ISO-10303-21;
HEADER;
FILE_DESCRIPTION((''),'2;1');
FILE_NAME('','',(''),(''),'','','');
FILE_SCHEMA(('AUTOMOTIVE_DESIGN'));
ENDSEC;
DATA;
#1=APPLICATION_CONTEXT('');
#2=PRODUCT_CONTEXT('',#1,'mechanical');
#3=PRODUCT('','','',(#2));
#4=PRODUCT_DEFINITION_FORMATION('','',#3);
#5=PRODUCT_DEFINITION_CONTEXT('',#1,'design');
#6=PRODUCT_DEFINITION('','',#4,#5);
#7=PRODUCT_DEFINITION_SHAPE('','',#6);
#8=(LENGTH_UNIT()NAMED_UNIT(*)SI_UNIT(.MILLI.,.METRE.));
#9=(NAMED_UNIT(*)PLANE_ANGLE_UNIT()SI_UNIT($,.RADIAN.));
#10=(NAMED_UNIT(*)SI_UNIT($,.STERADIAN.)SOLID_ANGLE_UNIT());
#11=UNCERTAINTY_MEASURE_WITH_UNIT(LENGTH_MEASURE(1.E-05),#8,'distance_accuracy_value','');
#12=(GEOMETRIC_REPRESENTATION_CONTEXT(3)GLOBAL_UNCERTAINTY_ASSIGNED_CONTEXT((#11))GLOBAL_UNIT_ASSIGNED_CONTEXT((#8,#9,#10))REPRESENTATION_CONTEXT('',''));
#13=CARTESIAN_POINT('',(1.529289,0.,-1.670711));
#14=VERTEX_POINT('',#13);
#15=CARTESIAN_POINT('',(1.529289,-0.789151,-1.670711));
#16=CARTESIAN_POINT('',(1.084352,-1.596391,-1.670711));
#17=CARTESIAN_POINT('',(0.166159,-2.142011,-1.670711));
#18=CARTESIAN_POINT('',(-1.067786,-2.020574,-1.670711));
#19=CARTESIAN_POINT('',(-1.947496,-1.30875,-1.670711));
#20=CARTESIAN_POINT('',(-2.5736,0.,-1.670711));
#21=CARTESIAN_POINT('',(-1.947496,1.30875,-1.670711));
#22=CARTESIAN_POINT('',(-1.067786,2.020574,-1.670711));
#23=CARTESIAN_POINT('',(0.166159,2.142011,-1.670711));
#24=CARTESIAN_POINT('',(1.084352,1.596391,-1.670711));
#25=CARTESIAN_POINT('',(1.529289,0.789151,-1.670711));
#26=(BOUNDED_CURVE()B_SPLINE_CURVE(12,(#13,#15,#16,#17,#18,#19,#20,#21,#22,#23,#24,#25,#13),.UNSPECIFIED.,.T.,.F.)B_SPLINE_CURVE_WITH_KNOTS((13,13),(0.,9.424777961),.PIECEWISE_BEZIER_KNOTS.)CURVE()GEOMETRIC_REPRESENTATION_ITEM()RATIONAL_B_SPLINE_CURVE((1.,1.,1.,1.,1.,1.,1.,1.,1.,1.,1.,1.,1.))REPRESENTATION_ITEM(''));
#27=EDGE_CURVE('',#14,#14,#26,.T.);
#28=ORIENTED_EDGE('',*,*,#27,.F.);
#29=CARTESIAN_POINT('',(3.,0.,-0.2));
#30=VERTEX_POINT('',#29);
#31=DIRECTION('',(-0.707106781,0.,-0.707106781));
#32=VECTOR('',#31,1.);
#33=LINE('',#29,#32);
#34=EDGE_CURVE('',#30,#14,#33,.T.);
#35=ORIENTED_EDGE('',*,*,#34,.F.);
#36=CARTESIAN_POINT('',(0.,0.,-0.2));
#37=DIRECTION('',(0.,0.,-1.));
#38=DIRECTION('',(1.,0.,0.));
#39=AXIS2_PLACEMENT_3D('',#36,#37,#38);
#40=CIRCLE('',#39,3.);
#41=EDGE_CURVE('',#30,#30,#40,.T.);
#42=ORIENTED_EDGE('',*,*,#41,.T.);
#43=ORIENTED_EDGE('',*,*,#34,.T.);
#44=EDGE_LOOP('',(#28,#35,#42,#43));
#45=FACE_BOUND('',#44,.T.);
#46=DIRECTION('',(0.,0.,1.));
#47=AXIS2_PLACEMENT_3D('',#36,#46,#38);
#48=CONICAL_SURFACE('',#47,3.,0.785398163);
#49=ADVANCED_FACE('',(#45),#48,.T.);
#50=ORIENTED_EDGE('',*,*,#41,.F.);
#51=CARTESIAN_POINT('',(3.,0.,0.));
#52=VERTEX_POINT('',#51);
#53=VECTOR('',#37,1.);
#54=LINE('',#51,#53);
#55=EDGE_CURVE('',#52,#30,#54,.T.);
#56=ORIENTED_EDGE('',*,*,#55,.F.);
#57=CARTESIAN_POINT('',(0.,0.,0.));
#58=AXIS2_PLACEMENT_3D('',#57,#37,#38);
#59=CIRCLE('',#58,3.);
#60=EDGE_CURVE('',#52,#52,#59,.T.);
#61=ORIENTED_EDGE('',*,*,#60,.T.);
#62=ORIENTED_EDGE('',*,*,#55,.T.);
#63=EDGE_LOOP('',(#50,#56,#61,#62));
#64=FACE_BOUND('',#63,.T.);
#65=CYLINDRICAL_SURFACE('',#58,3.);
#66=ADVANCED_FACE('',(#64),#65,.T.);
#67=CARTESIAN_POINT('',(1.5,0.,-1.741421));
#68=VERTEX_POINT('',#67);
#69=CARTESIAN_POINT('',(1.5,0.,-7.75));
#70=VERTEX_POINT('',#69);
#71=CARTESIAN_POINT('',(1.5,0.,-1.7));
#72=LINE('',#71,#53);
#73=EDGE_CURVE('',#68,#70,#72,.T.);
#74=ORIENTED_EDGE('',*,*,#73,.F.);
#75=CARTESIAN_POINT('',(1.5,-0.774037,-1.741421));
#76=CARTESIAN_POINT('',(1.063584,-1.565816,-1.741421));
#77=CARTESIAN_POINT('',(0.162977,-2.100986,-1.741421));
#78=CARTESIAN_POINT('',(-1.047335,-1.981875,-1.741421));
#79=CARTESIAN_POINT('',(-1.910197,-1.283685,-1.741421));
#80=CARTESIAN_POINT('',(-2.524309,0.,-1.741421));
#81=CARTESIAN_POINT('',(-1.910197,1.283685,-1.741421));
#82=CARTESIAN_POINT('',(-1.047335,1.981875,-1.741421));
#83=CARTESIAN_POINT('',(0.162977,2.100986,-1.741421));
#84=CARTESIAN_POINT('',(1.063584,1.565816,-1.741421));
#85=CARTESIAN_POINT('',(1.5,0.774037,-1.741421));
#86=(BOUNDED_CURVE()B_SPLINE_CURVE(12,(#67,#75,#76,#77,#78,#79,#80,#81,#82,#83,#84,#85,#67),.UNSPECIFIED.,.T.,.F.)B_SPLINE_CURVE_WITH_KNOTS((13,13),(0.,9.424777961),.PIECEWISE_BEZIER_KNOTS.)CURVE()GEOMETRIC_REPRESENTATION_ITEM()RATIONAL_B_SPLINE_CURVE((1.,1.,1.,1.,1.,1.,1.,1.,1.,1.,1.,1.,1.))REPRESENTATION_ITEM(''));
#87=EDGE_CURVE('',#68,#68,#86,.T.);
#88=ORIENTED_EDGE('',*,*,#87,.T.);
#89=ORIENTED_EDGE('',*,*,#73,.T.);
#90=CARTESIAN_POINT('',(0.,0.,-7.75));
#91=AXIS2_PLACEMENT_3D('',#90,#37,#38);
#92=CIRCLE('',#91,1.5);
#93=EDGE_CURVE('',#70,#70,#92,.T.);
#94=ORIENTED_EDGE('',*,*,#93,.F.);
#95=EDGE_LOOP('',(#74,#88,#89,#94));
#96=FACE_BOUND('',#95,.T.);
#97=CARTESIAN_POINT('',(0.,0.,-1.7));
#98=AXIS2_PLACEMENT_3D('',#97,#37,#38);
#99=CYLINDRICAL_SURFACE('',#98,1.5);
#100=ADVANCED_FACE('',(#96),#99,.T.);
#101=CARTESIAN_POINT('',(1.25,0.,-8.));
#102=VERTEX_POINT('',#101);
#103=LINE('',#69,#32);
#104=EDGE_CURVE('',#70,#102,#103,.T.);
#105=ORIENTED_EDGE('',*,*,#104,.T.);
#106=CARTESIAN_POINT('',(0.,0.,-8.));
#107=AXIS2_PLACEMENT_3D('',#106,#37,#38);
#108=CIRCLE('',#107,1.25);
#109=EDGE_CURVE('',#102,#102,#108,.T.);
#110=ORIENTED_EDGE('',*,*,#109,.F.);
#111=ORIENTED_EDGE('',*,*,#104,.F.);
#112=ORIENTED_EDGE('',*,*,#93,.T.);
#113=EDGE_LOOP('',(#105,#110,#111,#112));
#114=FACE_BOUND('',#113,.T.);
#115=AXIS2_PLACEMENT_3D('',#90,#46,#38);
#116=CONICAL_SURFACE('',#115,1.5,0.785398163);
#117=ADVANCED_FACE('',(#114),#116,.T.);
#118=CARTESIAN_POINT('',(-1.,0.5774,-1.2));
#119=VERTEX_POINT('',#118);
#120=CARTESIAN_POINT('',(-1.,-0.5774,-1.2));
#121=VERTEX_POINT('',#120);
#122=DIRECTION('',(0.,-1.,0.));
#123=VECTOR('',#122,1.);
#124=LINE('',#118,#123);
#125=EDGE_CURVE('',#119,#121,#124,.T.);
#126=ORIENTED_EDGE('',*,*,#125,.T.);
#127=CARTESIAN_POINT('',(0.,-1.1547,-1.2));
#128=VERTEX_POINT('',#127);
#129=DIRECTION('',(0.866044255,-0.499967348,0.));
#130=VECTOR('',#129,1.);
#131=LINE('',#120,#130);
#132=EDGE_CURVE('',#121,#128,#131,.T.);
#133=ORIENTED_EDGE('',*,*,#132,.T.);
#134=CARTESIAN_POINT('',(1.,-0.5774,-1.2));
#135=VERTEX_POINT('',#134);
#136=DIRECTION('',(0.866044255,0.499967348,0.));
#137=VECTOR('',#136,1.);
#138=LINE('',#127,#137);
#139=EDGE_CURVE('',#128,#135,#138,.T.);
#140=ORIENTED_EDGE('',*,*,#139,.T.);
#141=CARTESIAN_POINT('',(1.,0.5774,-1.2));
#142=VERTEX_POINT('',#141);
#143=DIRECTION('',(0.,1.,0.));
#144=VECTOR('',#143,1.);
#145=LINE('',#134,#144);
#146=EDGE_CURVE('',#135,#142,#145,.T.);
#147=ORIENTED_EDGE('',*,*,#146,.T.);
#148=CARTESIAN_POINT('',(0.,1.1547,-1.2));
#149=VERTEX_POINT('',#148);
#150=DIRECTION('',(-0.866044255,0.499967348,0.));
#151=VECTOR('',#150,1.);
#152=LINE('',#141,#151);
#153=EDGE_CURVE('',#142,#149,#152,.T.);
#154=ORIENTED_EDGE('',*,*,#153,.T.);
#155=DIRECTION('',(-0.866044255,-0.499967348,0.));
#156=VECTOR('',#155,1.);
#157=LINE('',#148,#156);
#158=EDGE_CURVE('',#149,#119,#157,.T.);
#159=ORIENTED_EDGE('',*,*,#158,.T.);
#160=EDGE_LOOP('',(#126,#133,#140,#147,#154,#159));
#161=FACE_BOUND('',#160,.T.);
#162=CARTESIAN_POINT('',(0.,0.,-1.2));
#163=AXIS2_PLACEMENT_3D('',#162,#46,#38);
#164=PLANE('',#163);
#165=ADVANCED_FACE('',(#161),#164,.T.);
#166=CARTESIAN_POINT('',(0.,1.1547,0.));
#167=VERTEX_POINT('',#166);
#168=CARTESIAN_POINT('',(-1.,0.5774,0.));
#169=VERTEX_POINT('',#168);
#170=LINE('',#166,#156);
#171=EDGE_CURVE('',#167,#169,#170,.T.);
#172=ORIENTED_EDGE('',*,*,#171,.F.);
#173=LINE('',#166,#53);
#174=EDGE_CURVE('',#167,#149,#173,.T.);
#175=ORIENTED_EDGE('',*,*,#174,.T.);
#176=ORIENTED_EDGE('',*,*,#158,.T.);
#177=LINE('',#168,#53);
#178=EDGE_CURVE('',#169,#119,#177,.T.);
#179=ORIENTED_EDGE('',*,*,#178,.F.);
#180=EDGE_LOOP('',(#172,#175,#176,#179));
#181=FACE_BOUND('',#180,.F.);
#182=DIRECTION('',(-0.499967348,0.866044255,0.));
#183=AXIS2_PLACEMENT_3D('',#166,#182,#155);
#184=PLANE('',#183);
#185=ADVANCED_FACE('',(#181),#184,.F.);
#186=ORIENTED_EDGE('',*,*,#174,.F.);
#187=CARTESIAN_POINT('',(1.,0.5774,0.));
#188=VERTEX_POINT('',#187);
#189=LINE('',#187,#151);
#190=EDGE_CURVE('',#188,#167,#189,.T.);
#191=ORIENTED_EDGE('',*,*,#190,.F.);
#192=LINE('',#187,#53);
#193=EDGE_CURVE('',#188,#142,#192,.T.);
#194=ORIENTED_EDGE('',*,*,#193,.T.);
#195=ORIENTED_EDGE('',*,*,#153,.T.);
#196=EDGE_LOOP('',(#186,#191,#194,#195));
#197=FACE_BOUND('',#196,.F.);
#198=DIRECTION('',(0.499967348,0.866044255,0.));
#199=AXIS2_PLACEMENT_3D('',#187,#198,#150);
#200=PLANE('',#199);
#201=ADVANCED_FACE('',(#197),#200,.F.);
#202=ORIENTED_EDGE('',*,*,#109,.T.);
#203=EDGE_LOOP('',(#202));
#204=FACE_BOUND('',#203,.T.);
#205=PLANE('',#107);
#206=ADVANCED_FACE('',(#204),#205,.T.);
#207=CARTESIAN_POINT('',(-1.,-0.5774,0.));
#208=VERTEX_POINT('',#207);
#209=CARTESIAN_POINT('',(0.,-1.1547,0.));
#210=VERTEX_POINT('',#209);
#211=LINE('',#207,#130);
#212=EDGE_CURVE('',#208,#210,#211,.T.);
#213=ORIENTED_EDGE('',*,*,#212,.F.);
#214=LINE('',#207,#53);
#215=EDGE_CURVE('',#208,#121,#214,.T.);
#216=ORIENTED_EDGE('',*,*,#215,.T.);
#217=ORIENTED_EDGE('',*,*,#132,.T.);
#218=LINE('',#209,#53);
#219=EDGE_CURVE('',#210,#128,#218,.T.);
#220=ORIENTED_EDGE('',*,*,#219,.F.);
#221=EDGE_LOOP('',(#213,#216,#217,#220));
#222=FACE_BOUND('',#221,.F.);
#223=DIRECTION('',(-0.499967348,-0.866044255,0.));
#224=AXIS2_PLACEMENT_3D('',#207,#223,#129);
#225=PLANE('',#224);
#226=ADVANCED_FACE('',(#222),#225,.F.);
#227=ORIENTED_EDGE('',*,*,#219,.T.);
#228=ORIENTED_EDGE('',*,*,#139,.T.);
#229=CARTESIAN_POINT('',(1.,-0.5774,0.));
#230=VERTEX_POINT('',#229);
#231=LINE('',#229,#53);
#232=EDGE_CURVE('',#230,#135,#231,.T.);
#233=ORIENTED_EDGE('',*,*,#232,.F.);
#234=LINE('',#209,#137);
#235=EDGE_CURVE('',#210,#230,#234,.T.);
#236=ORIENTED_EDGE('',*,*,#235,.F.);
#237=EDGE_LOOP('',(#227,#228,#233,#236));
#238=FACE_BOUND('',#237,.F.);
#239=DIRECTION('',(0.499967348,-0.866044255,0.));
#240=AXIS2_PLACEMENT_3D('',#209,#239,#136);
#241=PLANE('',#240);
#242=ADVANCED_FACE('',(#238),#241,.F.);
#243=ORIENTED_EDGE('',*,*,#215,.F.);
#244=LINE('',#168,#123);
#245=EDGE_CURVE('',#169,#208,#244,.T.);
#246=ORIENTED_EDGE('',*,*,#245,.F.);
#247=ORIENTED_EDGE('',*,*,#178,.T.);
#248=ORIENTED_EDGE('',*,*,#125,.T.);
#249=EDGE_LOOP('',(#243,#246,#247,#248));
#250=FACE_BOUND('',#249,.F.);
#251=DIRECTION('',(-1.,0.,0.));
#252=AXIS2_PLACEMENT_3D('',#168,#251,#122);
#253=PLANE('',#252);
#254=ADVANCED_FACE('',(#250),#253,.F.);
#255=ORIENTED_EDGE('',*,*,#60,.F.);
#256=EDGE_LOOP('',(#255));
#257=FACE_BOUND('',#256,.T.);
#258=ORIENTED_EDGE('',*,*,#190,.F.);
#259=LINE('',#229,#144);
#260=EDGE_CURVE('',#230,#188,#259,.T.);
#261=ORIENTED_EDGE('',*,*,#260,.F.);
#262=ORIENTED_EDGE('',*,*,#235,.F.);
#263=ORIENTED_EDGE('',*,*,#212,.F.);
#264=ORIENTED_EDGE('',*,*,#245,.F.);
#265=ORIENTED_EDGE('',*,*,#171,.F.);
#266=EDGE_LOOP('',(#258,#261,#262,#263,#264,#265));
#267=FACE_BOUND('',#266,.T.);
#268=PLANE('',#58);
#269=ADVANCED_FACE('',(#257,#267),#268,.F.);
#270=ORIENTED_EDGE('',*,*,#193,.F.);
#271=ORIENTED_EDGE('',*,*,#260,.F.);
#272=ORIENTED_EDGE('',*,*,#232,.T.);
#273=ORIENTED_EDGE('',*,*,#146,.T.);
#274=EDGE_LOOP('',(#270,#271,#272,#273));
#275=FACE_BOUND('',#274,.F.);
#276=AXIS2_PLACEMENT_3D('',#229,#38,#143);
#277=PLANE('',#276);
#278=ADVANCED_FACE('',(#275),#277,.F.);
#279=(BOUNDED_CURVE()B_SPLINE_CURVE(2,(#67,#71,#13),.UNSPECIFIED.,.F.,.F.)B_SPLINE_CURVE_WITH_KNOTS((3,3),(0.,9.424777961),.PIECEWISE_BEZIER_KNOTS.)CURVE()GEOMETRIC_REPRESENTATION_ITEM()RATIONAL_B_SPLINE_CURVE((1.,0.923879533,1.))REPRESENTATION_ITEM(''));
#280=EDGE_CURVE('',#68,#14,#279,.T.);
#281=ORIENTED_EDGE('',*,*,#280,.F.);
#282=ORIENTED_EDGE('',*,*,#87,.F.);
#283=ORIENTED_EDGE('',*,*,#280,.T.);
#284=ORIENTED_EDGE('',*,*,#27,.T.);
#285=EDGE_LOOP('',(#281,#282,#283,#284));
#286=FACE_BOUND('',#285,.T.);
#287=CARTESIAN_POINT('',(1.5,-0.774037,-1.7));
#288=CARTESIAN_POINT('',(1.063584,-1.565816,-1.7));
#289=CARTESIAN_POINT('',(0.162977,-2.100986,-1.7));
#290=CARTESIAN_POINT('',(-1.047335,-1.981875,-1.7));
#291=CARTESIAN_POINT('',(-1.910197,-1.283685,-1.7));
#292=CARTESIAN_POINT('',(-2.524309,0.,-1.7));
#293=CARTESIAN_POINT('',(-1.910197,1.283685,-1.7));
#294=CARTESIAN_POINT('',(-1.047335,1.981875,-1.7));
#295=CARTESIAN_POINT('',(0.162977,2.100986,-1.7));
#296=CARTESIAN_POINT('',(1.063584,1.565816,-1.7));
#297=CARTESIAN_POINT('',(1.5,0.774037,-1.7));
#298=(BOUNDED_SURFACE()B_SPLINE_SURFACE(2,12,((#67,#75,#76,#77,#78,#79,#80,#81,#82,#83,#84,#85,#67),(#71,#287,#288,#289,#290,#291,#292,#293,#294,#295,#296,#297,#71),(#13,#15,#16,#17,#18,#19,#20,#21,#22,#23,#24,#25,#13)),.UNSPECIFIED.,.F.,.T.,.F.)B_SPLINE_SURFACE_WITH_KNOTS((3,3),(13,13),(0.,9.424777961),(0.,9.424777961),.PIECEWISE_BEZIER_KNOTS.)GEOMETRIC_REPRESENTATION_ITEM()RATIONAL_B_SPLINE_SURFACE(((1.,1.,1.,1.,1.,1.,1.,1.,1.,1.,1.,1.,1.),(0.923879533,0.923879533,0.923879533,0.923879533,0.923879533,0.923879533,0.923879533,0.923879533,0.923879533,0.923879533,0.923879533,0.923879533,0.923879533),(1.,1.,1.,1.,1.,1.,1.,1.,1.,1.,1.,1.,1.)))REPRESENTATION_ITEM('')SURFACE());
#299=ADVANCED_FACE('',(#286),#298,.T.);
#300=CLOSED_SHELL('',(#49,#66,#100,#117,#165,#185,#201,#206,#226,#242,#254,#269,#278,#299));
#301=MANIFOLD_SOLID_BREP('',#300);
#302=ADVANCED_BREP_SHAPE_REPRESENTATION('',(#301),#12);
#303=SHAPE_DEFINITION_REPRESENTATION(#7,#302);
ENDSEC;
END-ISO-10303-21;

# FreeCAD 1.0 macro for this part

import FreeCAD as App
import Part
import Sketcher


def edges_at(feature, points):
    """Names of the edges that pass closest to the given points."""
    edges = feature.Shape.Edges
    near = lambda p: min(range(len(edges)), key=lambda i: edges[i].distToShape(Part.Vertex(*p))[0])
    return sorted({f"Edge{near(p) + 1}" for p in points})

doc = App.newDocument("Part")
params = doc.addObject("Spreadsheet::Sheet", "Params")
for row, (alias, value) in enumerate([
    ("sketch1_width", "3 mm"),
    ("sketch1_height", "8 mm"),
    ("sketch1_width2", "1.5 mm"),
    ("sketch1_height2", "0.2 mm"),
    ("revolution_angle", "360 deg"),
    ("pocket1_length", "1.2 mm"),
    ("fillet_radius", "0.1 mm"),
    ("chamfer_size", "0.25 mm"),
], start=1):
    params.set(f"A{row}", alias)
    params.set(f"B{row}", "=" + value)
    params.setAlias(f"B{row}", alias)

body = doc.addObject("PartDesign::Body", "Body")

sketch1 = body.newObject("Sketcher::SketchObject", "Sketch")
sketch1.AttachmentSupport = (doc.getObject("XZ_Plane"), [""])
sketch1.MapMode = "FlatFace"
sketch1.addGeometry([
    Part.LineSegment(App.Vector(1.5, -1.7, 0), App.Vector(1.5, -8, 0)),
    Part.LineSegment(App.Vector(1.5, -8, 0), App.Vector(0, -8, 0)),
    Part.LineSegment(App.Vector(0, -8, 0), App.Vector(0, 0, 0)),
    Part.LineSegment(App.Vector(0, 0, 0), App.Vector(3, 0, 0)),
    Part.LineSegment(App.Vector(3, 0, 0), App.Vector(3, -0.2, 0)),
    Part.LineSegment(App.Vector(3, -0.2, 0), App.Vector(1.5, -1.7, 0)),
], False)
sketch1.addConstraint([
    Sketcher.Constraint("Coincident", 0, 2, 1, 1),
    Sketcher.Constraint("Coincident", 1, 2, 2, 1),
    Sketcher.Constraint("Coincident", 2, 2, 3, 1),
    Sketcher.Constraint("Coincident", 3, 2, 4, 1),
    Sketcher.Constraint("Coincident", 4, 2, 5, 1),
    Sketcher.Constraint("Coincident", 5, 2, 0, 1),
    Sketcher.Constraint("Vertical", 0),
    Sketcher.Constraint("Horizontal", 1),
    Sketcher.Constraint("Vertical", 2),
    Sketcher.Constraint("Horizontal", 3),
    Sketcher.Constraint("Vertical", 4),
    Sketcher.Constraint("Coincident", 2, 2, -1, 1),
    Sketcher.Constraint("DistanceX", 3, 1, 3, 2, 3.0),
    Sketcher.Constraint("DistanceY", 2, 1, 2, 2, 8.0),
    Sketcher.Constraint("DistanceX", 1, 2, 1, 1, 1.5),
    Sketcher.Constraint("DistanceY", 4, 2, 4, 1, 0.2),
    Sketcher.Constraint("DistanceY", 5, 2, 4, 2, 1.5),
])
sketch1.setExpression("Constraints[12]", "Params.sketch1_width")
sketch1.setExpression("Constraints[13]", "Params.sketch1_height")
sketch1.setExpression("Constraints[14]", "Params.sketch1_width2")
sketch1.setExpression("Constraints[15]", "Params.sketch1_height2")
revolution = body.newObject("PartDesign::Revolution", "Revolution")
revolution.Profile = sketch1
revolution.ReferenceAxis = (sketch1, ["V_Axis"])
revolution.setExpression("Angle", "Params.revolution_angle")

sketch2 = body.newObject("Sketcher::SketchObject", "Sketch001")
sketch2.AttachmentSupport = (doc.getObject("XY_Plane"), [""])
sketch2.MapMode = "FlatFace"
sketch2.addGeometry([
    Part.LineSegment(App.Vector(0, 1.2, 0), App.Vector(-1, 0.6, 0)),
    Part.LineSegment(App.Vector(-1, 0.6, 0), App.Vector(-1, -0.6, 0)),
    Part.LineSegment(App.Vector(-1, -0.6, 0), App.Vector(0, -1.2, 0)),
    Part.LineSegment(App.Vector(0, -1.2, 0), App.Vector(1, -0.6, 0)),
    Part.LineSegment(App.Vector(1, -0.6, 0), App.Vector(1, 0.6, 0)),
    Part.LineSegment(App.Vector(1, 0.6, 0), App.Vector(0, 1.2, 0)),
], False)
sketch2.addConstraint([
    Sketcher.Constraint("Coincident", 0, 2, 1, 1),
    Sketcher.Constraint("Coincident", 1, 2, 2, 1),
    Sketcher.Constraint("Coincident", 2, 2, 3, 1),
    Sketcher.Constraint("Coincident", 3, 2, 4, 1),
    Sketcher.Constraint("Coincident", 4, 2, 5, 1),
    Sketcher.Constraint("Coincident", 5, 2, 0, 1),
    Sketcher.Constraint("Vertical", 1),
    Sketcher.Constraint("Vertical", 4),
    Sketcher.Constraint("Symmetric", 0, 2, 3, 2, -1, 1),
    Sketcher.Constraint("Symmetric", 2, 2, 5, 2, -1, 1),
    Sketcher.Constraint("PointOnObject", 2, 2, -2),
    Sketcher.Constraint("Parallel", 2, 5),
    Sketcher.Constraint("Horizontal", 1, 2, 3, 2),
    Sketcher.Constraint("DistanceX", 1, 2, 3, 2, 2.0),
    Sketcher.Constraint("DistanceY", 1, 2, 1, 1, 1.1548),
    Sketcher.Constraint("DistanceY", 2, 2, 0, 2, 1.732),
])
pocket1 = body.newObject("PartDesign::Pocket", "Pocket")
pocket1.Profile = sketch2
pocket1.setExpression("Length", "Params.pocket1_length")
doc.recompute()

fillet = body.newObject("PartDesign::Fillet", "Fillet")
fillet.Base = (pocket1, edges_at(pocket1, [(-1.5, 0, -1.7)]))
fillet.setExpression("Radius", "Params.fillet_radius")
doc.recompute()

chamfer = body.newObject("PartDesign::Chamfer", "Chamfer")
chamfer.Base = (fillet, edges_at(fillet, [(-1.5, 0, -8)]))
chamfer.setExpression("Size", "Params.chamfer_size")

doc.recompute()
